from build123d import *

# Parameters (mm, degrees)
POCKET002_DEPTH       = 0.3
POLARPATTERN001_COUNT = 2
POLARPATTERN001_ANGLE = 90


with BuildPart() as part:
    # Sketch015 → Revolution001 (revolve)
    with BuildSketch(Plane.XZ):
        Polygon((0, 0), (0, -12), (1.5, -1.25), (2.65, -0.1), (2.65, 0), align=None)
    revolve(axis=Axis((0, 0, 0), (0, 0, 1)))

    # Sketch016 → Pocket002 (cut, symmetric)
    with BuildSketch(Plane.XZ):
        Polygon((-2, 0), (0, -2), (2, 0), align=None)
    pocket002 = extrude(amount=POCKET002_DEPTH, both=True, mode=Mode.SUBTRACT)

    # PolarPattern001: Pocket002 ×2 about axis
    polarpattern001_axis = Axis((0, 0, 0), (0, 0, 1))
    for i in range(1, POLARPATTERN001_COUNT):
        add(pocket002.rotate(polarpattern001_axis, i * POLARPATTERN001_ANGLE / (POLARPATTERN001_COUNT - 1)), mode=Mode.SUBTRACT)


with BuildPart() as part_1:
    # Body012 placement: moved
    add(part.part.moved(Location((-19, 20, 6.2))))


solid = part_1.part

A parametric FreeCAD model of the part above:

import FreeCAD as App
import Part
import Sketcher

V = App.Vector
Q = App.Units.Quantity

doc = App.newDocument("Part")
params = doc.addObject("Spreadsheet::Sheet", "Params")
for row, (alias, value) in enumerate([
    ("sketch1_height", "12 mm"),
    ("sketch1_height2", "0.1 mm"),
    ("sketch1_width", "2.65 mm"),
    ("revolution_angle", "360 deg"),
    ("sketch2_width", "4 mm"),
    ("pocket1_length", "0.6 mm"),
], start=1):
    params.set(f"A{row}", alias)
    params.set(f"B{row}", "=" + value)
    params.setAlias(f"B{row}", alias)

body = doc.addObject("PartDesign::Body", "Body")

sketch1 = doc.addObject("Sketcher::SketchObject", "Sketch")
body.addObject(sketch1)
sketch1.AttachmentSupport = (doc.XZ_Plane, [""])
sketch1.MapMode = "FlatFace"
sketch1.addGeometry([
    Part.LineSegment(V(0, 0, 0), V(0, -12, 0)),
    Part.LineSegment(V(0, -12, 0), V(1.5, -1.25, 0)),
    Part.LineSegment(V(1.5, -1.25, 0), V(2.65, -0.1, 0)),
    Part.LineSegment(V(2.65, -0.1, 0), V(2.65, 0, 0)),
    Part.LineSegment(V(2.65, 0, 0), V(0, 0, 0)),
], False)
sketch1.addConstraint([
    Sketcher.Constraint("Coincident", 0, 2, 1, 1),
    Sketcher.Constraint("Coincident", 1, 2, 2, 1),
    Sketcher.Constraint("Coincident", 2, 2, 3, 1),
    Sketcher.Constraint("Coincident", 3, 2, 4, 1),
    Sketcher.Constraint("Coincident", 4, 2, 0, 1),
    Sketcher.Constraint("Vertical", 0),
    Sketcher.Constraint("Vertical", 3),
    Sketcher.Constraint("Horizontal", 4),
    Sketcher.Constraint("Coincident", 4, 2, -1, 1),
    Sketcher.Constraint("DistanceY", 0, 2, 0, 1, 12.0),
    Sketcher.Constraint("Angle", 2, Q("45 deg")),
    Sketcher.Constraint("DistanceY", 3, 1, 3, 2, 0.1),
    Sketcher.Constraint("DistanceX", 4, 2, 4, 1, 2.65),
    Sketcher.Constraint("DistanceX", -1, 1, 1, 2, 1.5),
])
sketch1.setExpression("Constraints[9]", "Params.sketch1_height")
sketch1.setExpression("Constraints[11]", "Params.sketch1_height2")
sketch1.setExpression("Constraints[12]", "Params.sketch1_width")
revolution = doc.addObject("PartDesign::Revolution", "Revolution")
body.addObject(revolution)
revolution.Profile = sketch1
revolution.ReferenceAxis = (sketch1, ["V_Axis"])
revolution.setExpression("Angle", "Params.revolution_angle")

sketch2 = doc.addObject("Sketcher::SketchObject", "Sketch001")
body.addObject(sketch2)
sketch2.AttachmentSupport = (doc.XZ_Plane, [""])
sketch2.MapMode = "FlatFace"
sketch2.addGeometry([
    Part.LineSegment(V(-2, 0, 0), V(0, -2, 0)),
    Part.LineSegment(V(0, -2, 0), V(2, 0, 0)),
    Part.LineSegment(V(2, 0, 0), V(-2, 0, 0)),
], False)
sketch2.addConstraint([
    Sketcher.Constraint("Coincident", 0, 2, 1, 1),
    Sketcher.Constraint("Coincident", 1, 2, 2, 1),
    Sketcher.Constraint("Coincident", 2, 2, 0, 1),
    Sketcher.Constraint("Horizontal", 2),
    Sketcher.Constraint("Symmetric", 1, 2, 2, 2, -1, 1),
    Sketcher.Constraint("PointOnObject", 0, 2, -2),
    Sketcher.Constraint("Perpendicular", 0, 1),
    Sketcher.Constraint("DistanceX", 2, 2, 2, 1, 4.0),
])
sketch2.setExpression("Constraints[7]", "Params.sketch2_width")
pocket1 = doc.addObject("PartDesign::Pocket", "Pocket")
body.addObject(pocket1)
pocket1.Profile = sketch2
pocket1.setExpression("Length", "Params.pocket1_length")
pocket1.Midplane = True
doc.recompute()

polarpattern = doc.addObject("PartDesign::PolarPattern", "PolarPattern")
body.addObject(polarpattern)
polarpattern.Originals = [pocket1]
polarpattern.Axis = (doc.Z_Axis, [""])
polarpattern.Angle = 90
polarpattern.Occurrences = 2
body.Tip = polarpattern
body2 = doc.addObject("PartDesign::Body", "Body001")
doc.recompute()

body.Placement = App.Placement(V(-19, 20, 6.2), App.Rotation(V(0, 0, 1), 0))
boolean = doc.addObject("PartDesign::Boolean", "Boolean")
body2.addObject(boolean)
boolean.Type = "Fuse"
boolean.addObjects([body])

doc.recompute()
